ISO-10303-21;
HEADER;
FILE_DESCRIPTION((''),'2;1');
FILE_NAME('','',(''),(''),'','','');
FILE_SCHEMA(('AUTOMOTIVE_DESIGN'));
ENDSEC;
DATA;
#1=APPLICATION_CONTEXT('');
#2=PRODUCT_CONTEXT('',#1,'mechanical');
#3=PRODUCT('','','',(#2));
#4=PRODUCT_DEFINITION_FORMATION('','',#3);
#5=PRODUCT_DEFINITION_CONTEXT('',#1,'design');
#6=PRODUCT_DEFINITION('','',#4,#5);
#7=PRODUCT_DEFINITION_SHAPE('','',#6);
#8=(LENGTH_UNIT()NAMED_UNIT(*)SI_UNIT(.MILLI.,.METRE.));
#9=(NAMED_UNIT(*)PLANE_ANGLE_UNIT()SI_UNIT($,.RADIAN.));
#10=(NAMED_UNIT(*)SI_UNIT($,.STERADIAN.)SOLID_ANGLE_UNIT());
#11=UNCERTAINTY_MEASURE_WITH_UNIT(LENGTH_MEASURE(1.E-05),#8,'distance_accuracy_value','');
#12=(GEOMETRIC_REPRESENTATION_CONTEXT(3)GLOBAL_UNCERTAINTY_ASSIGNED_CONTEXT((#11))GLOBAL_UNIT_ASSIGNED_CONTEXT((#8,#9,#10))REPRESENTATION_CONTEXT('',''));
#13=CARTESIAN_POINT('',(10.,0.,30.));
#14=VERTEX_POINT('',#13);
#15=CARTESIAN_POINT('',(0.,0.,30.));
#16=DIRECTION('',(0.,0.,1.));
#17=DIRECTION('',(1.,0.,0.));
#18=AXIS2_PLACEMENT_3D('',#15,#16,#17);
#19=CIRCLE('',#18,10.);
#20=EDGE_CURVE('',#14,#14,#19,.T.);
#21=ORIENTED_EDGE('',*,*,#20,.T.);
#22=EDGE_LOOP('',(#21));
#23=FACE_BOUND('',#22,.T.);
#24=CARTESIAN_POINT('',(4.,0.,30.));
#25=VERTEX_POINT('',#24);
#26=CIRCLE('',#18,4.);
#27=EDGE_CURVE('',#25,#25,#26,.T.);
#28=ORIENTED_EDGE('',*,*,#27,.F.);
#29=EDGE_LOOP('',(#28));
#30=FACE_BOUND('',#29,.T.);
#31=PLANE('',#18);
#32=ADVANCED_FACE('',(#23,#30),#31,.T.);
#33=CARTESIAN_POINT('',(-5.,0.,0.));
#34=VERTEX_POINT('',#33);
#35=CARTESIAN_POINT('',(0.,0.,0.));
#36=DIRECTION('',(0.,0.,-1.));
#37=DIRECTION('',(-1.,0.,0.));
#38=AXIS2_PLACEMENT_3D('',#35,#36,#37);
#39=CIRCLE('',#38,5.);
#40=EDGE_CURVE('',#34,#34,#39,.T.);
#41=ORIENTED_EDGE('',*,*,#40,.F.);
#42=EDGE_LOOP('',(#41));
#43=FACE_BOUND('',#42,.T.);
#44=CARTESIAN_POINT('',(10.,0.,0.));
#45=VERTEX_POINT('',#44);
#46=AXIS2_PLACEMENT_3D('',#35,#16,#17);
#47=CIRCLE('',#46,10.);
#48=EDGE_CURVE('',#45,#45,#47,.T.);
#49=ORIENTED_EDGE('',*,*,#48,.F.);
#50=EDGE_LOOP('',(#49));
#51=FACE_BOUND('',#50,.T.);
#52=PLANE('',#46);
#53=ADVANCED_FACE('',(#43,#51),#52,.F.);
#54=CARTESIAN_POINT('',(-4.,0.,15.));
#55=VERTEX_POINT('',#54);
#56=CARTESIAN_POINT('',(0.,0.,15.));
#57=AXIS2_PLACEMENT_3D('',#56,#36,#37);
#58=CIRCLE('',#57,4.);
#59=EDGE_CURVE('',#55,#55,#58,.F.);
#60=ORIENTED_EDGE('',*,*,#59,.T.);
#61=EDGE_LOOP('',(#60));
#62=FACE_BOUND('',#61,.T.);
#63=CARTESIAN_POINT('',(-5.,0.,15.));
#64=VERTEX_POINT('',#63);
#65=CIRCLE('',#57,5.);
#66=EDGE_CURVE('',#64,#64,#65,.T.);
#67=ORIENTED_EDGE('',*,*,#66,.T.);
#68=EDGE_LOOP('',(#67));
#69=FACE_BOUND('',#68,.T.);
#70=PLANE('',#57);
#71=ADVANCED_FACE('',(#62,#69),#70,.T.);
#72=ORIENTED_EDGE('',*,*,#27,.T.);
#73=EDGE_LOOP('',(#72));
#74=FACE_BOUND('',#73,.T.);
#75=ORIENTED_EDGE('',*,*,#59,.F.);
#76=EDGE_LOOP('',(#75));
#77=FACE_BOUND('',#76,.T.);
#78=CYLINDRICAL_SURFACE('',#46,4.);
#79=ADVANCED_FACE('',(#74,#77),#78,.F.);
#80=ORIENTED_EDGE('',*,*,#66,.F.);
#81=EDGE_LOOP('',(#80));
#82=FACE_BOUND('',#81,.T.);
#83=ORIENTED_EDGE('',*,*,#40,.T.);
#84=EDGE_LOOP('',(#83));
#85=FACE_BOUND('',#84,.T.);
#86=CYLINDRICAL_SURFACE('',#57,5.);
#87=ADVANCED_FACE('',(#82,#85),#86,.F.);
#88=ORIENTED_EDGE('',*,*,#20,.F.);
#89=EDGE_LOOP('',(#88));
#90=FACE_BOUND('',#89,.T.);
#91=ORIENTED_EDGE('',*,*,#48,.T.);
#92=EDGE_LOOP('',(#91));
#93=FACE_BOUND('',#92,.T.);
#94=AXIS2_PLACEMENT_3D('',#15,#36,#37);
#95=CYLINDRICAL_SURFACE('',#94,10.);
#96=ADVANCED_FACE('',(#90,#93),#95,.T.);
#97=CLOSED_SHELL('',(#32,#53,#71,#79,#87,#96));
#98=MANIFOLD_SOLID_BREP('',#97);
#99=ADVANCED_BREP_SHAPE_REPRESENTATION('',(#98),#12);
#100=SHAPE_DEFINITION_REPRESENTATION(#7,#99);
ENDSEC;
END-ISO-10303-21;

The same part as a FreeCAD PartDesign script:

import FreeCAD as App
import Part
import Sketcher
from FreeCAD import Vector

doc = App.newDocument("Part")
body = doc.addObject("PartDesign::Body", "Body")

# Sketch on XY plane
sketch1 = body.newObject("Sketcher::SketchObject", "Sketch")
sketch1.AttachmentSupport = (doc.getObject("XY_Plane"), [""])
sketch1.MapMode = "FlatFace"
sketch1.addGeometry(Part.Circle(Vector(0, 0, 0), Vector(0, 0, 1), 10), False)
sketch1.addGeometry(Part.Circle(Vector(0, 0, 0), Vector(0, 0, 1), 0.07), False)
sketch1.addConstraint(Sketcher.Constraint("Coincident", 0, 3, -1, 1))
sketch1.addConstraint(Sketcher.Constraint("Coincident", 1, 3, -1, 1))
sketch1.addConstraint(Sketcher.Constraint("Diameter", 0, 20.0))
sketch1.addConstraint(Sketcher.Constraint("Diameter", 1, 0.131141))
pad1 = body.newObject("PartDesign::Pad", "Pad")
pad1.Profile = sketch1
pad1.Length = 30

# Sketch on XY plane
sketch2 = body.newObject("Sketcher::SketchObject", "Sketch001")
sketch2.AttachmentSupport = (doc.getObject("XY_Plane"), [""])
sketch2.MapMode = "FlatFace"
sketch2.AttachmentOffset = App.Placement(Vector(0, 0, 30), App.Rotation())
sketch2.addGeometry(Part.Circle(Vector(0, 0, 0), Vector(0, 0, 1), 4), False)
sketch2.addConstraint(Sketcher.Constraint("Coincident", 0, 3, -1, 1))
sketch2.addConstraint(Sketcher.Constraint("Diameter", 0, 8.0))
pocket1 = body.newObject("PartDesign::Pocket", "Pocket")
pocket1.Profile = sketch2
pocket1.Length = 30

# Sketch on XY plane
sketch3 = body.newObject("Sketcher::SketchObject", "Sketch002")
sketch3.AttachmentSupport = (doc.getObject("XY_Plane"), [""])
sketch3.MapMode = "FlatFace"
sketch3.addGeometry(Part.Circle(Vector(0, 0, 0), Vector(0, 0, 1), 5), False)
sketch3.addConstraint(Sketcher.Constraint("Coincident", 0, 3, -1, 1))
sketch3.addConstraint(Sketcher.Constraint("Diameter", 0, 10.0))
pocket2 = body.newObject("PartDesign::Pocket", "Pocket001")
pocket2.Profile = sketch3
pocket2.Length = 15
pocket2.Reversed = True

doc.recompute()
